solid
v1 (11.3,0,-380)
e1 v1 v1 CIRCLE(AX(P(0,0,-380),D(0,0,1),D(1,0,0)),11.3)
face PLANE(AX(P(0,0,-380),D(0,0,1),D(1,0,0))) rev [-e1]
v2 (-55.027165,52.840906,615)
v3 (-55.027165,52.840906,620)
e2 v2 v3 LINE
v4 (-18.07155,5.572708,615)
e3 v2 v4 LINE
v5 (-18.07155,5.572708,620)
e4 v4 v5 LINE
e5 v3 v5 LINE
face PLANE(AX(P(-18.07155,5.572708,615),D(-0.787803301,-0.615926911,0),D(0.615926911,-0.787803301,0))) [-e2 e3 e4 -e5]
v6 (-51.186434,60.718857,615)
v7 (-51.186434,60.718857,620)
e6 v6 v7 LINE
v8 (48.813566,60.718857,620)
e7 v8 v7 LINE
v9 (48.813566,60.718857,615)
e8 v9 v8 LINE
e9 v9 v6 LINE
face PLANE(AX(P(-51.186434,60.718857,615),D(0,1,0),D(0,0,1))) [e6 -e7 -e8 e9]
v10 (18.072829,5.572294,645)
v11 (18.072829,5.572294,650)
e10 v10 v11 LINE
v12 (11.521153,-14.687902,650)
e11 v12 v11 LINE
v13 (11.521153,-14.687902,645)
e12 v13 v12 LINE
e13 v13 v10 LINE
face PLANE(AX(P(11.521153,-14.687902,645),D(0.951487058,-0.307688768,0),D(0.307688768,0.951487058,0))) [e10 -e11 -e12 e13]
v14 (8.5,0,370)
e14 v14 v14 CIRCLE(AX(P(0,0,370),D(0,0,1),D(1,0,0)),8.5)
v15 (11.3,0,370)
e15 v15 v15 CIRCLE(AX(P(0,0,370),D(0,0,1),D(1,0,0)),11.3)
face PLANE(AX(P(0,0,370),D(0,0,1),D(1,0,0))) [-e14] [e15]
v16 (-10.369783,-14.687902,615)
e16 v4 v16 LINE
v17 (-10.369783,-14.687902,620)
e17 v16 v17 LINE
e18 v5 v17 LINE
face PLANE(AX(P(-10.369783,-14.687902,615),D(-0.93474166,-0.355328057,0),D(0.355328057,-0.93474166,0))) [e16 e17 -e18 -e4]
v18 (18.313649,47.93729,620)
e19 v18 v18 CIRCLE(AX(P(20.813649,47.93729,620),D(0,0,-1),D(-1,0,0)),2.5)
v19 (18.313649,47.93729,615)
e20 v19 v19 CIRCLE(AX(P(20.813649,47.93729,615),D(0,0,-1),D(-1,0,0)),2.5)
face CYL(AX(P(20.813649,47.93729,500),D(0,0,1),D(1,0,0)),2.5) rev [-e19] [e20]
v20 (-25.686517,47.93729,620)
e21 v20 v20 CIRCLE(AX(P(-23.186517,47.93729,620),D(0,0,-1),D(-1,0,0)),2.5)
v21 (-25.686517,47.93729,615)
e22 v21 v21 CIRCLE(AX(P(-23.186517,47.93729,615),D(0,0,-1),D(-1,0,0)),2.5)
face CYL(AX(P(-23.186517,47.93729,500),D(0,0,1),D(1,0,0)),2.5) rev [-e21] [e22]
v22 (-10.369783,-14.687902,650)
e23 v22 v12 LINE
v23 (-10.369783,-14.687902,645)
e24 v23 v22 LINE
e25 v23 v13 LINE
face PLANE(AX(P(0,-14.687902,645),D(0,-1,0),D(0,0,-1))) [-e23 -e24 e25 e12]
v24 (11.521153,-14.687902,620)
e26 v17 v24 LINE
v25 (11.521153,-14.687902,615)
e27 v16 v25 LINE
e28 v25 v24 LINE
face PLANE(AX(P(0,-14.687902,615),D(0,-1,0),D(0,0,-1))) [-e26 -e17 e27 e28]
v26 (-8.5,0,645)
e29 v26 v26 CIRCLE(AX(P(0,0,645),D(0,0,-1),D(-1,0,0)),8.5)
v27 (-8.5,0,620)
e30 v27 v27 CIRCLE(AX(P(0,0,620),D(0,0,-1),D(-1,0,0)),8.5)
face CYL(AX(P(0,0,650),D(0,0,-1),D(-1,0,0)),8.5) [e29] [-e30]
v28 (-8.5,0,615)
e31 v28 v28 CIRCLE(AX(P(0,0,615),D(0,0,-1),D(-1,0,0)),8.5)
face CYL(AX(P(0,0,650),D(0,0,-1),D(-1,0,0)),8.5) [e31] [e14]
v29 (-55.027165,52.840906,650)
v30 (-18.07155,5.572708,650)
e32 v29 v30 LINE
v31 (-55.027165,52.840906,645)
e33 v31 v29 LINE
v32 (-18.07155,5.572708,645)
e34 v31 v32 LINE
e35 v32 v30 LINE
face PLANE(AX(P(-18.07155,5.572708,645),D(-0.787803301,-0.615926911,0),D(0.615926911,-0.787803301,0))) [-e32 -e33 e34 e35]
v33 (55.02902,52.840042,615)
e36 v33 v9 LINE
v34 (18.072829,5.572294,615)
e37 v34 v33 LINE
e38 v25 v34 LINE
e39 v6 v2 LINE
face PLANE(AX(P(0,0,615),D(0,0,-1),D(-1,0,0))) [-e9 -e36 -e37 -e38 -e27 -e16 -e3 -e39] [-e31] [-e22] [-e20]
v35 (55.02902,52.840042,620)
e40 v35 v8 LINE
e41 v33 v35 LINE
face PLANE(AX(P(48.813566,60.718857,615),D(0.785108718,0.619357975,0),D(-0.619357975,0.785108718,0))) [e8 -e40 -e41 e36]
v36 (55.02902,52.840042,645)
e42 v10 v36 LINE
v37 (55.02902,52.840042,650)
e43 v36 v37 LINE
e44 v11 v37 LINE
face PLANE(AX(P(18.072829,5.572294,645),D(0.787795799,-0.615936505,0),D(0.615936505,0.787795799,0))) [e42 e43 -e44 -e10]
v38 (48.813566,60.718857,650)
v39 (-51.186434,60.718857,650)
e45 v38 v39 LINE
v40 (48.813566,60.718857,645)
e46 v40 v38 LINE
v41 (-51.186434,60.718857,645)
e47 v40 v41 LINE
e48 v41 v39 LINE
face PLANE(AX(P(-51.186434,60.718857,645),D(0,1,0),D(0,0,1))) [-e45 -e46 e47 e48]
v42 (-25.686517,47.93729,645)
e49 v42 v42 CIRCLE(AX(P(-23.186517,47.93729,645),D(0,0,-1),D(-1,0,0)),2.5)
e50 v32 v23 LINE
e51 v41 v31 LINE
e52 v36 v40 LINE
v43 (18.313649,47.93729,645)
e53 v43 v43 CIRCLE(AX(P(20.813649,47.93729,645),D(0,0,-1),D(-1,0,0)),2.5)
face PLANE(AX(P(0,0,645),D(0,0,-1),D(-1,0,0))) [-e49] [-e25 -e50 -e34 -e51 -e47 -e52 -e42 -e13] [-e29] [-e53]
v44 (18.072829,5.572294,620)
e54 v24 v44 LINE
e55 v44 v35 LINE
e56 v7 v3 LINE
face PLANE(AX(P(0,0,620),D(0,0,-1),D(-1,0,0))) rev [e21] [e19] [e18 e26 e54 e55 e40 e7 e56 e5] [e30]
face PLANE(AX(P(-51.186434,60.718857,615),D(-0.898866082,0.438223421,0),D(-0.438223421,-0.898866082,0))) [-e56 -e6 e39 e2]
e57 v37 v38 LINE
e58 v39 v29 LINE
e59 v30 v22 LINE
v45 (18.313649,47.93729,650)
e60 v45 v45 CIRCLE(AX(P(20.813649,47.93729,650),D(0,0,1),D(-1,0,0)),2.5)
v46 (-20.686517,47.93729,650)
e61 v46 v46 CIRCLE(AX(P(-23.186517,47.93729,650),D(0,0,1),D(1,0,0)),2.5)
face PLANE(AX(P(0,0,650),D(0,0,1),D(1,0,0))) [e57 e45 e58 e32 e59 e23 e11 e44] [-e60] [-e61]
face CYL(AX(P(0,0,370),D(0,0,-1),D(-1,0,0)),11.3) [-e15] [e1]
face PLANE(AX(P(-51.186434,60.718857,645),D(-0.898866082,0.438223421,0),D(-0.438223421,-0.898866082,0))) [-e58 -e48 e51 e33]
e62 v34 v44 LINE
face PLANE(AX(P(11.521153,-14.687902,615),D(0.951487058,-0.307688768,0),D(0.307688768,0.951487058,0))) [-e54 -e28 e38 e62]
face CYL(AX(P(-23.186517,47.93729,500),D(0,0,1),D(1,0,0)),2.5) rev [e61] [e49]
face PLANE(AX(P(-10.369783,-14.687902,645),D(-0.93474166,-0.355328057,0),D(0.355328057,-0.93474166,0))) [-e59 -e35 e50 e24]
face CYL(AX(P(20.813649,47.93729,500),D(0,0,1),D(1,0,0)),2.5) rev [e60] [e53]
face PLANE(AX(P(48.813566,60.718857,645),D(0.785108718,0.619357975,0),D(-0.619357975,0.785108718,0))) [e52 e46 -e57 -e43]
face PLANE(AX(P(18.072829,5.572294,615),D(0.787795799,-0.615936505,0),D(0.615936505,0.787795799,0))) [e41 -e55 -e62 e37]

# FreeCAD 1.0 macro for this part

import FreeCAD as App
import Part
import Sketcher
from FreeCAD import Vector
Q = App.Units.Quantity


def add_polygon(sketch, points):
    """Adds a closed chain of lines whose ends are joined by coincident constraints."""
    first, n = sketch.GeometryCount, len(points)
    for a, b in zip(points, points[1:] + points[:1]):
        sketch.addGeometry(Part.LineSegment(App.Vector(*a, 0), App.Vector(*b, 0)), False)
    for i in range(n):
        sketch.addConstraint(Sketcher.Constraint("Coincident", first + i, 2, first + (i + 1) % n, 1))

doc = App.newDocument("Part")
body = doc.addObject("PartDesign::Body", "Body")

# Sketch on XY plane
sketch1 = doc.addObject("Sketcher::SketchObject", "Sketch")
body.addObject(sketch1)
sketch1.AttachmentSupport = (doc.XY_Plane, [""])
sketch1.MapMode = "FlatFace"
sketch1.AttachmentOffset = App.Placement(Vector(0, 0, -380), App.Rotation())
sketch1.addGeometry(Part.Circle(Vector(0, 0, 0), Vector(0, 0, 1), 11), False)
sketch1.addConstraint(Sketcher.Constraint("Coincident", 0, 3, -1, 1))
sketch1.addConstraint(Sketcher.Constraint("Diameter", 0, 22.6))
pad1 = doc.addObject("PartDesign::Pad", "Pad")
body.addObject(pad1)
pad1.Profile = sketch1
pad1.Length = 750

# Sketch on XY plane
sketch2 = doc.addObject("Sketcher::SketchObject", "Sketch001")
body.addObject(sketch2)
sketch2.AttachmentSupport = (doc.XY_Plane, [""])
sketch2.MapMode = "FlatFace"
sketch2.AttachmentOffset = App.Placement(Vector(0, 0, 370), App.Rotation())
sketch2.addGeometry(Part.Circle(Vector(0, 0, 0), Vector(0, 0, 1), 8), False)
sketch2.addConstraint(Sketcher.Constraint("Coincident", 0, 3, -1, 1))
sketch2.addConstraint(Sketcher.Constraint("Diameter", 0, 17.0))
pad2 = doc.addObject("PartDesign::Pad", "Pad001")
body.addObject(pad2)
pad2.Profile = sketch2
pad2.Length = 280

# Sketch on XY plane
sketch3 = doc.addObject("Sketcher::SketchObject", "Sketch002")
body.addObject(sketch3)
sketch3.AttachmentSupport = (doc.XY_Plane, [""])
sketch3.MapMode = "FlatFace"
sketch3.AttachmentOffset = App.Placement(Vector(0, 0, 650), App.Rotation())
add_polygon(sketch3, [(12, -15), (18, 6), (55, 53), (49, 61), (-51, 61), (-55, 53), (-18, 6), (-10, -15)])  # lines 0-7
sketch3.addConstraint(Sketcher.Constraint("Horizontal", 3))
sketch3.addConstraint(Sketcher.Constraint("Horizontal", 7))
sketch3.addConstraint(Sketcher.Constraint("Equal", 1, 5))
sketch3.addConstraint(Sketcher.Constraint("DistanceX", 3, 2, 3, 1, 100.0))
sketch3.addConstraint(Sketcher.Constraint("Distance", 1, 60.0))
sketch3.addConstraint(Sketcher.Constraint("Angle", 0, Q("72.08 deg")))
sketch3.addConstraint(Sketcher.Constraint("Angle", 1, Q("51.98 deg")))
sketch3.addConstraint(Sketcher.Constraint("DistanceY", 5, 2, 4, 2, 47.268198))
sketch3.addConstraint(Sketcher.Constraint("Distance", 0, 21.293192))
sketch3.addConstraint(Sketcher.Constraint("Distance", 4, 8.764321))
sketch3.addConstraint(Sketcher.Constraint("Distance", 6, 21.67509))
sketch3.addConstraint(Sketcher.Constraint("DistanceX", 7, 1, 7, 2, 21.890936))
sketch3.addConstraint(Sketcher.Constraint("DistanceX", -1, 1, 0, 2, 18.072829))
sketch3.addConstraint(Sketcher.Constraint("DistanceX", 5, 2, -1, 1, 18.07155))
sketch3.addConstraint(Sketcher.Constraint("DistanceX", 4, 2, 3, 2, 3.840731))
sketch3.addConstraint(Sketcher.Constraint("DistanceY", -1, 1, 0, 2, 5.572294))
pad3 = doc.addObject("PartDesign::Pad", "Pad002")
body.addObject(pad3)
pad3.Profile = sketch3
pad3.Length = 5
pad3.Reversed = True
doc.recompute()

linearpattern = doc.addObject("PartDesign::LinearPattern", "LinearPattern")
body.addObject(linearpattern)
linearpattern.Originals = [pad3]
linearpattern.Direction = (doc.Z_Axis, [""])
linearpattern.Mode = "offset"
linearpattern.Offset = 30
linearpattern.Occurrences = 2
linearpattern.Reversed = True
body.Tip = linearpattern

# Sketch on XY plane
sketch4 = doc.addObject("Sketcher::SketchObject", "Sketch003")
body.addObject(sketch4)
sketch4.AttachmentSupport = (doc.XY_Plane, [""])
sketch4.MapMode = "FlatFace"
sketch4.AttachmentOffset = App.Placement(Vector(0, 0, 650), App.Rotation())
sketch4.addGeometry(Part.Circle(Vector(-23.2, 47.9, 0), Vector(0, 0, 1), 2.5), False)
sketch4.addGeometry(Part.Circle(Vector(20.8, 47.9, 0), Vector(0, 0, 1), 2.5), False)
sketch4.addConstraint(Sketcher.Constraint("Equal", 0, 1))
sketch4.addConstraint(Sketcher.Constraint("Horizontal", 0, 3, 1, 3))
sketch4.addConstraint(Sketcher.Constraint("Diameter", 0, 5.0))
sketch4.addConstraint(Sketcher.Constraint("DistanceY", -1, 1, 0, 3, 47.93729))
sketch4.addConstraint(Sketcher.Constraint("DistanceX", -1, 1, 1, 3, 20.813649))
sketch4.addConstraint(Sketcher.Constraint("DistanceX", 0, 3, -1, 1, 23.186517))
pocket1 = doc.addObject("PartDesign::Pocket", "Pocket")
body.addObject(pocket1)
pocket1.Profile = sketch4
pocket1.Length = 150

doc.recompute()
